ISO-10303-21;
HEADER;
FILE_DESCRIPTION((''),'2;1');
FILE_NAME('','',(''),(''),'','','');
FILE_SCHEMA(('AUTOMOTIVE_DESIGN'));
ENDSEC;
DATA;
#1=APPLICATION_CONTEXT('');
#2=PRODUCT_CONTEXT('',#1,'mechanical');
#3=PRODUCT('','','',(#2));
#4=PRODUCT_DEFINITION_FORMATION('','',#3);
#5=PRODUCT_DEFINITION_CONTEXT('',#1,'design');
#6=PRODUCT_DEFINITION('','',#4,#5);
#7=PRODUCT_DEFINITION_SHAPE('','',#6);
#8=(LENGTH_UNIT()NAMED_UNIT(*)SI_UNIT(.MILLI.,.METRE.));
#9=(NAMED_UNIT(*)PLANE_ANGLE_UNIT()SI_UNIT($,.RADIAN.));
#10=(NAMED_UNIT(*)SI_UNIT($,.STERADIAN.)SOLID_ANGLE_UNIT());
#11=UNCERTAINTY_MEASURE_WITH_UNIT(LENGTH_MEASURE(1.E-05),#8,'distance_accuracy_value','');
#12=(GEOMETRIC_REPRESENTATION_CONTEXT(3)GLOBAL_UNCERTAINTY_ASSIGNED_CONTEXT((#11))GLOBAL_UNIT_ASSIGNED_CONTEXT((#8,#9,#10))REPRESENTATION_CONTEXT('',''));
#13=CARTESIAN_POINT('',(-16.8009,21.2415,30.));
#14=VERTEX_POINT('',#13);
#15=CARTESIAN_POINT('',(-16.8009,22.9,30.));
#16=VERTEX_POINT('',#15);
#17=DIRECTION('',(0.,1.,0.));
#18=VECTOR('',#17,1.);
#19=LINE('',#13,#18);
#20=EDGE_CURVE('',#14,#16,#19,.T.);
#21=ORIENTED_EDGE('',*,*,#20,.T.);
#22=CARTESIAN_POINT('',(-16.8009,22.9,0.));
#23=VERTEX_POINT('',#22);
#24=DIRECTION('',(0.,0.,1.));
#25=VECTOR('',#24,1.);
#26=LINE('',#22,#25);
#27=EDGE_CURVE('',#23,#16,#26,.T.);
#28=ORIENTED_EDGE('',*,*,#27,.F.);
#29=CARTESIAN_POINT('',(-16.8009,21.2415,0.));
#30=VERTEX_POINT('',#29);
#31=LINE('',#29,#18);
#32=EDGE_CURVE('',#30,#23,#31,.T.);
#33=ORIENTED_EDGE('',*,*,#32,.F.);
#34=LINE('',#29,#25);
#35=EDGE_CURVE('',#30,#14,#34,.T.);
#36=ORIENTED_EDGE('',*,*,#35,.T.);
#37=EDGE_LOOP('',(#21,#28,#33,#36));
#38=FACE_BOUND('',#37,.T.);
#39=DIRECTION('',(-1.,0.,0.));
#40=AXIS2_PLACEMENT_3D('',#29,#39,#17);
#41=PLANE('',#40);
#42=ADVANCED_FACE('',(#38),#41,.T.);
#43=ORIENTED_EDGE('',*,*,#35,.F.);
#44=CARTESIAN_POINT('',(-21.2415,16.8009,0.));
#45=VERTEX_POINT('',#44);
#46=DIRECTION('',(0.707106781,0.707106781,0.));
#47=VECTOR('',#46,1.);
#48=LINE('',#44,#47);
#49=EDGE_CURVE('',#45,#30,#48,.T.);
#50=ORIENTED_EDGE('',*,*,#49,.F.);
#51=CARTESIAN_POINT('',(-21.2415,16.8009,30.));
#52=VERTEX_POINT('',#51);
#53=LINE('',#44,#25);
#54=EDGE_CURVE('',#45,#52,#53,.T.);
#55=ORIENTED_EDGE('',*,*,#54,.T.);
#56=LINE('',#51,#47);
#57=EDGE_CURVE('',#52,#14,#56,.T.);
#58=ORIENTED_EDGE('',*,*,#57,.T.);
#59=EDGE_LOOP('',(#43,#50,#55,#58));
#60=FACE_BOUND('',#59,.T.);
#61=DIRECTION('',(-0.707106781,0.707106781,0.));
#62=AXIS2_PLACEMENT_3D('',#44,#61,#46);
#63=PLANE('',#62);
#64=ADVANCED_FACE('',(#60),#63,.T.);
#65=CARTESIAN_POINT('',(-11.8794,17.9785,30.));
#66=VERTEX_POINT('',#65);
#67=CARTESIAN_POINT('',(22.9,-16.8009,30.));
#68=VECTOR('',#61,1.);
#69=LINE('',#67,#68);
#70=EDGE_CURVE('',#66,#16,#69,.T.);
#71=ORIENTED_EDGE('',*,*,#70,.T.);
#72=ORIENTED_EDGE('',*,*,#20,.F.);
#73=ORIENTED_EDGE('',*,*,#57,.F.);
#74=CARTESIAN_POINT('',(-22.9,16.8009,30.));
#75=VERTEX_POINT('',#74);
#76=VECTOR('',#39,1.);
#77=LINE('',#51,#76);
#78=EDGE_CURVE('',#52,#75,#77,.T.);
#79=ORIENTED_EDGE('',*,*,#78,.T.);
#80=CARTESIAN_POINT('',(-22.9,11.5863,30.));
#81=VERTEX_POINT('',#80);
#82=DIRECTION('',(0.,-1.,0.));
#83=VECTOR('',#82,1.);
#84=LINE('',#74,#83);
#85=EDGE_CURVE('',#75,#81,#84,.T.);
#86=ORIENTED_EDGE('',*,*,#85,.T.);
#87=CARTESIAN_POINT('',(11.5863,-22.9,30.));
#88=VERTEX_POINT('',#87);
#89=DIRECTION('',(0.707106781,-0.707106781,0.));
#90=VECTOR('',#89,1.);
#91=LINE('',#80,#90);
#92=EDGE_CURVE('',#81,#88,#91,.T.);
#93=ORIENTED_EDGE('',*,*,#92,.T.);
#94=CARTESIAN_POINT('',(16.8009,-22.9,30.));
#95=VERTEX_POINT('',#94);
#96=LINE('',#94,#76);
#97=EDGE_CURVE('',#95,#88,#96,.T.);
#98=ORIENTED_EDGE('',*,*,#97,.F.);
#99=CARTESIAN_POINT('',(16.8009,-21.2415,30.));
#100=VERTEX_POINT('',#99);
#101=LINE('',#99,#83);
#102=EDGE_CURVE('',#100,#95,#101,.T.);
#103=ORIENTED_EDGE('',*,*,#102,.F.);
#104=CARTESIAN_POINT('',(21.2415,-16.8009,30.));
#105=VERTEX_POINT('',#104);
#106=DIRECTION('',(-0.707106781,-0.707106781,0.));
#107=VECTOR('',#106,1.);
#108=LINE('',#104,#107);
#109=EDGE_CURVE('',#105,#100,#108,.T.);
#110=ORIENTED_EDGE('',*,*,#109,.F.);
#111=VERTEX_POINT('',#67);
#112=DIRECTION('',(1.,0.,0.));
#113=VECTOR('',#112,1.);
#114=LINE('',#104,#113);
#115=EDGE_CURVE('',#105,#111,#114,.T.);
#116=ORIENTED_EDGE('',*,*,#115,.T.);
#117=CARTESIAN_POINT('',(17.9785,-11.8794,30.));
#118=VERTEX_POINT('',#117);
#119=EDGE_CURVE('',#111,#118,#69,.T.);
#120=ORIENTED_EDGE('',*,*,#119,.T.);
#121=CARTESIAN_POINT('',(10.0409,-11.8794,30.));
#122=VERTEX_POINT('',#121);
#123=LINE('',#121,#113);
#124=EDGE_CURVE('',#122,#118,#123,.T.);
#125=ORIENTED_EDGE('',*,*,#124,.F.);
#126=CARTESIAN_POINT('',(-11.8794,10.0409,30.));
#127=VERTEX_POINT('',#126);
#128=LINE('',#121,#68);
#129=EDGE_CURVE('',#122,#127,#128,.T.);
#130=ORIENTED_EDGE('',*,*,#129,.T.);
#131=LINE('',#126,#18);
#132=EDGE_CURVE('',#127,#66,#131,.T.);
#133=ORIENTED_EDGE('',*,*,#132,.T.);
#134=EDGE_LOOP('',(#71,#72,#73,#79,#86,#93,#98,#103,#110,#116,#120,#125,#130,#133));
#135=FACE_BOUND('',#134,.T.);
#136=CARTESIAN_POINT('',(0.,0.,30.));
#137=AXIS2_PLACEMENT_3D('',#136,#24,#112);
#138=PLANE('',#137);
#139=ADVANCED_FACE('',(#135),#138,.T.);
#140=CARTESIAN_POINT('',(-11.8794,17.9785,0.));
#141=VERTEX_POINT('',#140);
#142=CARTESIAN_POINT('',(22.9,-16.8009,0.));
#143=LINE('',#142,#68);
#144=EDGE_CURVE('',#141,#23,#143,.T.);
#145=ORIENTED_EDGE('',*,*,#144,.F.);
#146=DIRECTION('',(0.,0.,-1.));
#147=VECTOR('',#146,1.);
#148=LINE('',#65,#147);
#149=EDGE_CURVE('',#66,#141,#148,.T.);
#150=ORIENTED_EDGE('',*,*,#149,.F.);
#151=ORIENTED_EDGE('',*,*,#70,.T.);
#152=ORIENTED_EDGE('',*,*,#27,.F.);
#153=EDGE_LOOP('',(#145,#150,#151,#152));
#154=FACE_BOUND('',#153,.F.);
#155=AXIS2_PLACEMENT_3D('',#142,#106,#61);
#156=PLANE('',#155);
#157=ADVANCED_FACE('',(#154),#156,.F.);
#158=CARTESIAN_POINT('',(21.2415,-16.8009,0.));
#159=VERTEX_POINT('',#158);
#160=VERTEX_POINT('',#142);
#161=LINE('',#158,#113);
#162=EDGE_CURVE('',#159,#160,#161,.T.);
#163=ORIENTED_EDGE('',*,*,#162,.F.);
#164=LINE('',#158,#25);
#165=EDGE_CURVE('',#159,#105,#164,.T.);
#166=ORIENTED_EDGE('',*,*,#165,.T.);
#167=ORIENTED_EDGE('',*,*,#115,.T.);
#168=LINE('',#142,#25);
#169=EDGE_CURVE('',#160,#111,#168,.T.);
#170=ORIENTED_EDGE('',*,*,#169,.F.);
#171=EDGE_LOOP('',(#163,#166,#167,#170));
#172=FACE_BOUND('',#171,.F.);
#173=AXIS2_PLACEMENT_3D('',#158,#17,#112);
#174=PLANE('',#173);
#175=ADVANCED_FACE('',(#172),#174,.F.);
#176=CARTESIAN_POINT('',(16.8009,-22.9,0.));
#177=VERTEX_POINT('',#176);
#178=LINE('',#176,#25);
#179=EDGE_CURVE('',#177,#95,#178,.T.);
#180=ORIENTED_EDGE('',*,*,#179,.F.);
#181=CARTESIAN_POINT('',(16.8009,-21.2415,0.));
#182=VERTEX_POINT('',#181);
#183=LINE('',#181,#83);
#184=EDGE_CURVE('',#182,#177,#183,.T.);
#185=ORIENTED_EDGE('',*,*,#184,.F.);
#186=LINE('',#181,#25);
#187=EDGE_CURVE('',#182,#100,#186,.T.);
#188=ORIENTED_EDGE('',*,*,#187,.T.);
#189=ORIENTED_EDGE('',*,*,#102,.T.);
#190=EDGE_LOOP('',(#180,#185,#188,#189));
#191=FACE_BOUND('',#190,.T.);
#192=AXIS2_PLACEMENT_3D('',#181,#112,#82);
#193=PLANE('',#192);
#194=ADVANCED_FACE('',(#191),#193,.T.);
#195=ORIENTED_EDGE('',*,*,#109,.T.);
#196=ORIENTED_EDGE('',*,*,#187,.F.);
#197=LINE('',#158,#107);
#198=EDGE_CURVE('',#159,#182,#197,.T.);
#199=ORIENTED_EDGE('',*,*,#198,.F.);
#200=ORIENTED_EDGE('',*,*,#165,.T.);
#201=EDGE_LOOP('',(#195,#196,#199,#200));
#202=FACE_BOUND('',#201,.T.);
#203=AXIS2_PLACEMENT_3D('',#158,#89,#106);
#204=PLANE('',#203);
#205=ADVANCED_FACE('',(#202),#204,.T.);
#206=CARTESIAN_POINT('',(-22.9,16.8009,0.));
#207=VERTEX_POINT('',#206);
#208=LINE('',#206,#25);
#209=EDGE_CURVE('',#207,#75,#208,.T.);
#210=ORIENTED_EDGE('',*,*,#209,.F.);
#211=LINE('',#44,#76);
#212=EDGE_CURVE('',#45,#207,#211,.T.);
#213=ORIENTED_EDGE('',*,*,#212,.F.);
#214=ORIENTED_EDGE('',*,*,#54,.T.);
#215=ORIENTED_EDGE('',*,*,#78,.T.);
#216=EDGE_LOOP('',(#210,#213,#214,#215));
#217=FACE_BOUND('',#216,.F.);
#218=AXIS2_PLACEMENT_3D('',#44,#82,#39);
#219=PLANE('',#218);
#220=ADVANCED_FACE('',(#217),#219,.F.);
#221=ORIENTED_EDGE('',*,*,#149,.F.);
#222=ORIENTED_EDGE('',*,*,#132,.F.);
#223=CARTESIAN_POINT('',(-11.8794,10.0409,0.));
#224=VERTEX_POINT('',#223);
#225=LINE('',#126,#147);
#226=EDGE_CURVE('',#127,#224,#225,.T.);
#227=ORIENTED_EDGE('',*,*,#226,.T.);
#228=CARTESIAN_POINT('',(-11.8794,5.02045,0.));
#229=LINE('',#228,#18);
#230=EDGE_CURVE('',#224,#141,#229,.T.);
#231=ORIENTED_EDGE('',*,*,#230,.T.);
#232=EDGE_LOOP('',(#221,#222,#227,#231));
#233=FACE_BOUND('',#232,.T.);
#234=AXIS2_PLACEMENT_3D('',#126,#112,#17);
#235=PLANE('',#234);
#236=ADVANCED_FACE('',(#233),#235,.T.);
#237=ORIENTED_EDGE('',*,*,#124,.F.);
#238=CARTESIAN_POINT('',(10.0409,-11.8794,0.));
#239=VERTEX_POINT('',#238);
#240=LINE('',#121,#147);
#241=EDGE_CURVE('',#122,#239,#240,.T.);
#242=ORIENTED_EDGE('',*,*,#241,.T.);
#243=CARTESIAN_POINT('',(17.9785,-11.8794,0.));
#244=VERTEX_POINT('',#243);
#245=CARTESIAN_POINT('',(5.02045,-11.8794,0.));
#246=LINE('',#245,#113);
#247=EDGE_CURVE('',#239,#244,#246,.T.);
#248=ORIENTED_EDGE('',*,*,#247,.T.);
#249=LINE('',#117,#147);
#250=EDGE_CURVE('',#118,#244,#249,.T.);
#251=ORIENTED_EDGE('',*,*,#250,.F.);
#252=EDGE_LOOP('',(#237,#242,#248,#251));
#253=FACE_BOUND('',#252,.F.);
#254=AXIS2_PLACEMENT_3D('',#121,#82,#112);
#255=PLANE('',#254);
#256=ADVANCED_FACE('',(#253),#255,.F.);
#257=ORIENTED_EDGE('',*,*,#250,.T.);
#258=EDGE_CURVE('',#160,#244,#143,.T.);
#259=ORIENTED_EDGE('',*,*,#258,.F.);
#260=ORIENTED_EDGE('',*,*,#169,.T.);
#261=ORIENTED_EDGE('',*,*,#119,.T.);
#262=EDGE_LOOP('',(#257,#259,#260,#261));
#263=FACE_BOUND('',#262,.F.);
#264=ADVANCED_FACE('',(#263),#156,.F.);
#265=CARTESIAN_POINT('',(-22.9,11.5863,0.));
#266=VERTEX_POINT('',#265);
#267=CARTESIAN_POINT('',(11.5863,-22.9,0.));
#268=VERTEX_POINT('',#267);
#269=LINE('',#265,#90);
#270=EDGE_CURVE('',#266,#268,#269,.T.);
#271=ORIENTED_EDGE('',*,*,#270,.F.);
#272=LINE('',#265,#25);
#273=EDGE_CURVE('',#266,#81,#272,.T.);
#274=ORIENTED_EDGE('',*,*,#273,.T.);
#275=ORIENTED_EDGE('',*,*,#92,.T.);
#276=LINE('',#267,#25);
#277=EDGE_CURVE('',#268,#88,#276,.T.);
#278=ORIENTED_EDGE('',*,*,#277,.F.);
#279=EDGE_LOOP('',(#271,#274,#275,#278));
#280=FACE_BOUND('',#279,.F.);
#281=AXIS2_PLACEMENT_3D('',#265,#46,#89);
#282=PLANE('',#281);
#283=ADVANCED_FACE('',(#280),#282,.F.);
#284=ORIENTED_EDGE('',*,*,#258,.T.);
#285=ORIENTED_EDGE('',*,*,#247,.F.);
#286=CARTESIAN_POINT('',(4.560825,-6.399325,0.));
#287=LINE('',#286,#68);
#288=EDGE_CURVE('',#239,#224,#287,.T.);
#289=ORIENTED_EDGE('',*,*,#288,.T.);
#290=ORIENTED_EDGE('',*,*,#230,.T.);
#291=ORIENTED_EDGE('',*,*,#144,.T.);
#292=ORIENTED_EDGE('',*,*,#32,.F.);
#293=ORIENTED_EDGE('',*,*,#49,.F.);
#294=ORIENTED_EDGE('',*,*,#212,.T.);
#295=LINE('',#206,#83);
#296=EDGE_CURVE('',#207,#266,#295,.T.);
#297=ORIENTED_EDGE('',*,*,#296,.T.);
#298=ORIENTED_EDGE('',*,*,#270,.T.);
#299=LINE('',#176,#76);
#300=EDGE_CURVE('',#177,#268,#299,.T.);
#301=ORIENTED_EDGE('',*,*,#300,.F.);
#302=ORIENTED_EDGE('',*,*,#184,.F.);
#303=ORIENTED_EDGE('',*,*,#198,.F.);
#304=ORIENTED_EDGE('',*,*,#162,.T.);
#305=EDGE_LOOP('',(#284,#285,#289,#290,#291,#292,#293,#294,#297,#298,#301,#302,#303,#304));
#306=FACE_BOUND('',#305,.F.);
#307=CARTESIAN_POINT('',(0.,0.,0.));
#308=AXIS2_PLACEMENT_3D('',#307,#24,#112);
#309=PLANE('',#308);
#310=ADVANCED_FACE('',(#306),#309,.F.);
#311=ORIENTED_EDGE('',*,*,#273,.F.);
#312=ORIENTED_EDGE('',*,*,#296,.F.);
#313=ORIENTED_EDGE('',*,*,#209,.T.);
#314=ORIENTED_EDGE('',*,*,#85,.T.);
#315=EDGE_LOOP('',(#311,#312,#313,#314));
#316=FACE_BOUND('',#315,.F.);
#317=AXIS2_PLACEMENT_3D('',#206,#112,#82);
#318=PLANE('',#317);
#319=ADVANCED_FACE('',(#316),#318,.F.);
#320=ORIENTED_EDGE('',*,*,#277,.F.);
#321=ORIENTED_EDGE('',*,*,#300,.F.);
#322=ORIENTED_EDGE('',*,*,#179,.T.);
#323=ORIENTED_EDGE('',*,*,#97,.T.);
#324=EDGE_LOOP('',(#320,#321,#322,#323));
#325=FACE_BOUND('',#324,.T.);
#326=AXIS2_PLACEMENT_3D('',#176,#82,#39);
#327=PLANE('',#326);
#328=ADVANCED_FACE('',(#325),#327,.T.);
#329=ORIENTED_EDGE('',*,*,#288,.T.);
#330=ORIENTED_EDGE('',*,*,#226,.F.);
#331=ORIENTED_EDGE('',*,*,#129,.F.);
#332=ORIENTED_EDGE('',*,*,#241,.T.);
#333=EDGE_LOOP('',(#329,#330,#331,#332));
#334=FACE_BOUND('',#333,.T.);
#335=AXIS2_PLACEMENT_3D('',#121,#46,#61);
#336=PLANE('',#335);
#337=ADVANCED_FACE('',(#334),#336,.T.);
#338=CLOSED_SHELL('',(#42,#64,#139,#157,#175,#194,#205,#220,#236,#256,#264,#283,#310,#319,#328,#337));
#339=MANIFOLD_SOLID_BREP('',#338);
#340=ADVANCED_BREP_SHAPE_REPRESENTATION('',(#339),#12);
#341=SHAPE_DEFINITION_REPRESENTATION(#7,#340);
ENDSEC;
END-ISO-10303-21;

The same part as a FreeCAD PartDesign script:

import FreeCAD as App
import Part
import Sketcher

V = App.Vector

doc = App.newDocument("Part")
body = doc.addObject("PartDesign::Body", "Body")

# Sketch on XY plane
sketch1 = body.newObject("Sketcher::SketchObject", "Sketch")
sketch1.AttachmentSupport = (doc.getObject("XY_Plane"), [""])
sketch1.MapMode = "FlatFace"
sketch1.addGeometry([
    Part.LineSegment(V(-16.8009, 22.9, 0), V(-16.8009, 21.2415, 0)),  # 0
    Part.LineSegment(V(-16.8009, 21.2415, 0), V(-21.2415, 16.8009, 0)),  # 1
    Part.LineSegment(V(-21.2415, 16.8009, 0), V(-22.9, 16.8009, 0)),  # 2
    Part.LineSegment(V(-22.9, 16.8009, 0), V(-22.9, 11.5863, 0)),  # 3
    Part.LineSegment(V(-22.9, 11.5863, 0), V(11.5863, -22.9, 0)),  # 4
    Part.LineSegment(V(11.5863, -22.9, 0), V(16.8009, -22.9, 0)),  # 5
    Part.LineSegment(V(16.8009, -22.9, 0), V(16.8009, -21.2415, 0)),  # 6
    Part.LineSegment(V(16.8009, -21.2415, 0), V(21.2415, -16.8009, 0)),  # 7
    Part.LineSegment(V(21.2415, -16.8009, 0), V(22.9, -16.8009, 0)),  # 8
    Part.LineSegment(V(22.9, -16.8009, 0), V(-16.8009, 22.9, 0)),  # 9
], False)
sketch1.addConstraint([
    Sketcher.Constraint("Coincident", 0, 2, 1, 1),
    Sketcher.Constraint("Coincident", 1, 2, 2, 1),
    Sketcher.Constraint("Coincident", 2, 2, 3, 1),
    Sketcher.Constraint("Coincident", 3, 2, 4, 1),
    Sketcher.Constraint("Coincident", 4, 2, 5, 1),
    Sketcher.Constraint("Coincident", 5, 2, 6, 1),
    Sketcher.Constraint("Coincident", 6, 2, 7, 1),
    Sketcher.Constraint("Coincident", 7, 2, 8, 1),
    Sketcher.Constraint("Coincident", 8, 2, 9, 1),
    Sketcher.Constraint("Coincident", 9, 2, 0, 1),
    Sketcher.Constraint("Vertical", 0),
    Sketcher.Constraint("Horizontal", 2),
    Sketcher.Constraint("Vertical", 3),
    Sketcher.Constraint("Horizontal", 5),
    Sketcher.Constraint("Vertical", 6),
    Sketcher.Constraint("Horizontal", 8),
    Sketcher.Constraint("Symmetric", 0, 2, 6, 2, -1, 1),
    Sketcher.Constraint("Symmetric", 1, 2, 7, 2, -1, 1),
    Sketcher.Constraint("Perpendicular", 1, 4),
    Sketcher.Constraint("Perpendicular", 7, 9),
    Sketcher.Constraint("Equal", 2, 8),
    Sketcher.Constraint("Equal", 8, 0),
    Sketcher.Constraint("Equal", 5, 3),
    Sketcher.Constraint("Equal", 0, 6),
    Sketcher.Constraint("Distance", 1, 6.28),
    Sketcher.Constraint("DistanceX", 2, 2, -1, 1, 22.9),
    Sketcher.Constraint("Distance", 4, 48.771),
    Sketcher.Constraint("DistanceX", 2, 2, 2, 1, 1.6585),
])
pad1 = body.newObject("PartDesign::Pad", "Pad")
pad1.Profile = sketch1
pad1.Length = 30

# Sketch on XY plane
sketch2 = body.newObject("Sketcher::SketchObject", "Sketch001")
sketch2.AttachmentSupport = (doc.getObject("XY_Plane"), [""])
sketch2.MapMode = "FlatFace"
sketch2.AttachmentOffset = App.Placement(V(0, 0, 30), App.Rotation())
sketch2.addGeometry([
    Part.LineSegment(V(10.0409, -11.8794, 0), V(17.9785, -11.8794, 0)),  # 0
    Part.LineSegment(V(17.9785, -11.8794, 0), V(14.0097, -7.9106, 0)),  # 1
    Part.LineSegment(V(14.0097, -7.9106, 0), V(17.9785, -3.9418, 0)),  # 2
    Part.LineSegment(V(17.9785, -3.9418, 0), V(-3.9418, 17.9785, 0)),  # 3
    Part.LineSegment(V(-3.9418, 17.9785, 0), V(-7.9106, 14.0097, 0)),  # 4
    Part.LineSegment(V(-7.9106, 14.0097, 0), V(-11.8794, 17.9785, 0)),  # 5
    Part.LineSegment(V(-11.8794, 17.9785, 0), V(-11.8794, 10.0409, 0)),  # 6
    Part.LineSegment(V(-11.8794, 10.0409, 0), V(10.0409, -11.8794, 0)),  # 7
], False)
sketch2.addConstraint([
    Sketcher.Constraint("Coincident", 0, 2, 1, 1),
    Sketcher.Constraint("Coincident", 1, 2, 2, 1),
    Sketcher.Constraint("Coincident", 2, 2, 3, 1),
    Sketcher.Constraint("Coincident", 3, 2, 4, 1),
    Sketcher.Constraint("Coincident", 4, 2, 5, 1),
    Sketcher.Constraint("Coincident", 5, 2, 6, 1),
    Sketcher.Constraint("Coincident", 6, 2, 7, 1),
    Sketcher.Constraint("Coincident", 7, 2, 0, 1),
    Sketcher.Constraint("Horizontal", 0),
    Sketcher.Constraint("Vertical", 6),
    Sketcher.Constraint("Perpendicular", 1, 2),
    Sketcher.Constraint("Perpendicular", 2, 3),
    Sketcher.Constraint("Perpendicular", 3, 4),
    Sketcher.Constraint("Perpendicular", 4, 5),
    Sketcher.Constraint("Parallel", 5, 7),
    Sketcher.Constraint("Horizontal", 3, 2, 5, 2),
    Sketcher.Constraint("Vertical", 0, 2, 2, 2),
    Sketcher.Constraint("Equal", 0, 6),
    Sketcher.Constraint("Equal", 1, 2),
    Sketcher.Constraint("Equal", 3, 7),
    Sketcher.Constraint("Distance", 3, 31.0),
    Sketcher.Constraint("DistanceX", 0, 1, 0, 2, 7.9376),
    Sketcher.Constraint("DistanceY", -1, 1, 6, 2, 10.041),
    Sketcher.Constraint("DistanceX", -1, 1, 7, 2, 10.041),
])
pocket1 = body.newObject("PartDesign::Pocket", "Pocket")
pocket1.Profile = sketch2
pocket1.Type = "ThroughAll"

doc.recompute()
